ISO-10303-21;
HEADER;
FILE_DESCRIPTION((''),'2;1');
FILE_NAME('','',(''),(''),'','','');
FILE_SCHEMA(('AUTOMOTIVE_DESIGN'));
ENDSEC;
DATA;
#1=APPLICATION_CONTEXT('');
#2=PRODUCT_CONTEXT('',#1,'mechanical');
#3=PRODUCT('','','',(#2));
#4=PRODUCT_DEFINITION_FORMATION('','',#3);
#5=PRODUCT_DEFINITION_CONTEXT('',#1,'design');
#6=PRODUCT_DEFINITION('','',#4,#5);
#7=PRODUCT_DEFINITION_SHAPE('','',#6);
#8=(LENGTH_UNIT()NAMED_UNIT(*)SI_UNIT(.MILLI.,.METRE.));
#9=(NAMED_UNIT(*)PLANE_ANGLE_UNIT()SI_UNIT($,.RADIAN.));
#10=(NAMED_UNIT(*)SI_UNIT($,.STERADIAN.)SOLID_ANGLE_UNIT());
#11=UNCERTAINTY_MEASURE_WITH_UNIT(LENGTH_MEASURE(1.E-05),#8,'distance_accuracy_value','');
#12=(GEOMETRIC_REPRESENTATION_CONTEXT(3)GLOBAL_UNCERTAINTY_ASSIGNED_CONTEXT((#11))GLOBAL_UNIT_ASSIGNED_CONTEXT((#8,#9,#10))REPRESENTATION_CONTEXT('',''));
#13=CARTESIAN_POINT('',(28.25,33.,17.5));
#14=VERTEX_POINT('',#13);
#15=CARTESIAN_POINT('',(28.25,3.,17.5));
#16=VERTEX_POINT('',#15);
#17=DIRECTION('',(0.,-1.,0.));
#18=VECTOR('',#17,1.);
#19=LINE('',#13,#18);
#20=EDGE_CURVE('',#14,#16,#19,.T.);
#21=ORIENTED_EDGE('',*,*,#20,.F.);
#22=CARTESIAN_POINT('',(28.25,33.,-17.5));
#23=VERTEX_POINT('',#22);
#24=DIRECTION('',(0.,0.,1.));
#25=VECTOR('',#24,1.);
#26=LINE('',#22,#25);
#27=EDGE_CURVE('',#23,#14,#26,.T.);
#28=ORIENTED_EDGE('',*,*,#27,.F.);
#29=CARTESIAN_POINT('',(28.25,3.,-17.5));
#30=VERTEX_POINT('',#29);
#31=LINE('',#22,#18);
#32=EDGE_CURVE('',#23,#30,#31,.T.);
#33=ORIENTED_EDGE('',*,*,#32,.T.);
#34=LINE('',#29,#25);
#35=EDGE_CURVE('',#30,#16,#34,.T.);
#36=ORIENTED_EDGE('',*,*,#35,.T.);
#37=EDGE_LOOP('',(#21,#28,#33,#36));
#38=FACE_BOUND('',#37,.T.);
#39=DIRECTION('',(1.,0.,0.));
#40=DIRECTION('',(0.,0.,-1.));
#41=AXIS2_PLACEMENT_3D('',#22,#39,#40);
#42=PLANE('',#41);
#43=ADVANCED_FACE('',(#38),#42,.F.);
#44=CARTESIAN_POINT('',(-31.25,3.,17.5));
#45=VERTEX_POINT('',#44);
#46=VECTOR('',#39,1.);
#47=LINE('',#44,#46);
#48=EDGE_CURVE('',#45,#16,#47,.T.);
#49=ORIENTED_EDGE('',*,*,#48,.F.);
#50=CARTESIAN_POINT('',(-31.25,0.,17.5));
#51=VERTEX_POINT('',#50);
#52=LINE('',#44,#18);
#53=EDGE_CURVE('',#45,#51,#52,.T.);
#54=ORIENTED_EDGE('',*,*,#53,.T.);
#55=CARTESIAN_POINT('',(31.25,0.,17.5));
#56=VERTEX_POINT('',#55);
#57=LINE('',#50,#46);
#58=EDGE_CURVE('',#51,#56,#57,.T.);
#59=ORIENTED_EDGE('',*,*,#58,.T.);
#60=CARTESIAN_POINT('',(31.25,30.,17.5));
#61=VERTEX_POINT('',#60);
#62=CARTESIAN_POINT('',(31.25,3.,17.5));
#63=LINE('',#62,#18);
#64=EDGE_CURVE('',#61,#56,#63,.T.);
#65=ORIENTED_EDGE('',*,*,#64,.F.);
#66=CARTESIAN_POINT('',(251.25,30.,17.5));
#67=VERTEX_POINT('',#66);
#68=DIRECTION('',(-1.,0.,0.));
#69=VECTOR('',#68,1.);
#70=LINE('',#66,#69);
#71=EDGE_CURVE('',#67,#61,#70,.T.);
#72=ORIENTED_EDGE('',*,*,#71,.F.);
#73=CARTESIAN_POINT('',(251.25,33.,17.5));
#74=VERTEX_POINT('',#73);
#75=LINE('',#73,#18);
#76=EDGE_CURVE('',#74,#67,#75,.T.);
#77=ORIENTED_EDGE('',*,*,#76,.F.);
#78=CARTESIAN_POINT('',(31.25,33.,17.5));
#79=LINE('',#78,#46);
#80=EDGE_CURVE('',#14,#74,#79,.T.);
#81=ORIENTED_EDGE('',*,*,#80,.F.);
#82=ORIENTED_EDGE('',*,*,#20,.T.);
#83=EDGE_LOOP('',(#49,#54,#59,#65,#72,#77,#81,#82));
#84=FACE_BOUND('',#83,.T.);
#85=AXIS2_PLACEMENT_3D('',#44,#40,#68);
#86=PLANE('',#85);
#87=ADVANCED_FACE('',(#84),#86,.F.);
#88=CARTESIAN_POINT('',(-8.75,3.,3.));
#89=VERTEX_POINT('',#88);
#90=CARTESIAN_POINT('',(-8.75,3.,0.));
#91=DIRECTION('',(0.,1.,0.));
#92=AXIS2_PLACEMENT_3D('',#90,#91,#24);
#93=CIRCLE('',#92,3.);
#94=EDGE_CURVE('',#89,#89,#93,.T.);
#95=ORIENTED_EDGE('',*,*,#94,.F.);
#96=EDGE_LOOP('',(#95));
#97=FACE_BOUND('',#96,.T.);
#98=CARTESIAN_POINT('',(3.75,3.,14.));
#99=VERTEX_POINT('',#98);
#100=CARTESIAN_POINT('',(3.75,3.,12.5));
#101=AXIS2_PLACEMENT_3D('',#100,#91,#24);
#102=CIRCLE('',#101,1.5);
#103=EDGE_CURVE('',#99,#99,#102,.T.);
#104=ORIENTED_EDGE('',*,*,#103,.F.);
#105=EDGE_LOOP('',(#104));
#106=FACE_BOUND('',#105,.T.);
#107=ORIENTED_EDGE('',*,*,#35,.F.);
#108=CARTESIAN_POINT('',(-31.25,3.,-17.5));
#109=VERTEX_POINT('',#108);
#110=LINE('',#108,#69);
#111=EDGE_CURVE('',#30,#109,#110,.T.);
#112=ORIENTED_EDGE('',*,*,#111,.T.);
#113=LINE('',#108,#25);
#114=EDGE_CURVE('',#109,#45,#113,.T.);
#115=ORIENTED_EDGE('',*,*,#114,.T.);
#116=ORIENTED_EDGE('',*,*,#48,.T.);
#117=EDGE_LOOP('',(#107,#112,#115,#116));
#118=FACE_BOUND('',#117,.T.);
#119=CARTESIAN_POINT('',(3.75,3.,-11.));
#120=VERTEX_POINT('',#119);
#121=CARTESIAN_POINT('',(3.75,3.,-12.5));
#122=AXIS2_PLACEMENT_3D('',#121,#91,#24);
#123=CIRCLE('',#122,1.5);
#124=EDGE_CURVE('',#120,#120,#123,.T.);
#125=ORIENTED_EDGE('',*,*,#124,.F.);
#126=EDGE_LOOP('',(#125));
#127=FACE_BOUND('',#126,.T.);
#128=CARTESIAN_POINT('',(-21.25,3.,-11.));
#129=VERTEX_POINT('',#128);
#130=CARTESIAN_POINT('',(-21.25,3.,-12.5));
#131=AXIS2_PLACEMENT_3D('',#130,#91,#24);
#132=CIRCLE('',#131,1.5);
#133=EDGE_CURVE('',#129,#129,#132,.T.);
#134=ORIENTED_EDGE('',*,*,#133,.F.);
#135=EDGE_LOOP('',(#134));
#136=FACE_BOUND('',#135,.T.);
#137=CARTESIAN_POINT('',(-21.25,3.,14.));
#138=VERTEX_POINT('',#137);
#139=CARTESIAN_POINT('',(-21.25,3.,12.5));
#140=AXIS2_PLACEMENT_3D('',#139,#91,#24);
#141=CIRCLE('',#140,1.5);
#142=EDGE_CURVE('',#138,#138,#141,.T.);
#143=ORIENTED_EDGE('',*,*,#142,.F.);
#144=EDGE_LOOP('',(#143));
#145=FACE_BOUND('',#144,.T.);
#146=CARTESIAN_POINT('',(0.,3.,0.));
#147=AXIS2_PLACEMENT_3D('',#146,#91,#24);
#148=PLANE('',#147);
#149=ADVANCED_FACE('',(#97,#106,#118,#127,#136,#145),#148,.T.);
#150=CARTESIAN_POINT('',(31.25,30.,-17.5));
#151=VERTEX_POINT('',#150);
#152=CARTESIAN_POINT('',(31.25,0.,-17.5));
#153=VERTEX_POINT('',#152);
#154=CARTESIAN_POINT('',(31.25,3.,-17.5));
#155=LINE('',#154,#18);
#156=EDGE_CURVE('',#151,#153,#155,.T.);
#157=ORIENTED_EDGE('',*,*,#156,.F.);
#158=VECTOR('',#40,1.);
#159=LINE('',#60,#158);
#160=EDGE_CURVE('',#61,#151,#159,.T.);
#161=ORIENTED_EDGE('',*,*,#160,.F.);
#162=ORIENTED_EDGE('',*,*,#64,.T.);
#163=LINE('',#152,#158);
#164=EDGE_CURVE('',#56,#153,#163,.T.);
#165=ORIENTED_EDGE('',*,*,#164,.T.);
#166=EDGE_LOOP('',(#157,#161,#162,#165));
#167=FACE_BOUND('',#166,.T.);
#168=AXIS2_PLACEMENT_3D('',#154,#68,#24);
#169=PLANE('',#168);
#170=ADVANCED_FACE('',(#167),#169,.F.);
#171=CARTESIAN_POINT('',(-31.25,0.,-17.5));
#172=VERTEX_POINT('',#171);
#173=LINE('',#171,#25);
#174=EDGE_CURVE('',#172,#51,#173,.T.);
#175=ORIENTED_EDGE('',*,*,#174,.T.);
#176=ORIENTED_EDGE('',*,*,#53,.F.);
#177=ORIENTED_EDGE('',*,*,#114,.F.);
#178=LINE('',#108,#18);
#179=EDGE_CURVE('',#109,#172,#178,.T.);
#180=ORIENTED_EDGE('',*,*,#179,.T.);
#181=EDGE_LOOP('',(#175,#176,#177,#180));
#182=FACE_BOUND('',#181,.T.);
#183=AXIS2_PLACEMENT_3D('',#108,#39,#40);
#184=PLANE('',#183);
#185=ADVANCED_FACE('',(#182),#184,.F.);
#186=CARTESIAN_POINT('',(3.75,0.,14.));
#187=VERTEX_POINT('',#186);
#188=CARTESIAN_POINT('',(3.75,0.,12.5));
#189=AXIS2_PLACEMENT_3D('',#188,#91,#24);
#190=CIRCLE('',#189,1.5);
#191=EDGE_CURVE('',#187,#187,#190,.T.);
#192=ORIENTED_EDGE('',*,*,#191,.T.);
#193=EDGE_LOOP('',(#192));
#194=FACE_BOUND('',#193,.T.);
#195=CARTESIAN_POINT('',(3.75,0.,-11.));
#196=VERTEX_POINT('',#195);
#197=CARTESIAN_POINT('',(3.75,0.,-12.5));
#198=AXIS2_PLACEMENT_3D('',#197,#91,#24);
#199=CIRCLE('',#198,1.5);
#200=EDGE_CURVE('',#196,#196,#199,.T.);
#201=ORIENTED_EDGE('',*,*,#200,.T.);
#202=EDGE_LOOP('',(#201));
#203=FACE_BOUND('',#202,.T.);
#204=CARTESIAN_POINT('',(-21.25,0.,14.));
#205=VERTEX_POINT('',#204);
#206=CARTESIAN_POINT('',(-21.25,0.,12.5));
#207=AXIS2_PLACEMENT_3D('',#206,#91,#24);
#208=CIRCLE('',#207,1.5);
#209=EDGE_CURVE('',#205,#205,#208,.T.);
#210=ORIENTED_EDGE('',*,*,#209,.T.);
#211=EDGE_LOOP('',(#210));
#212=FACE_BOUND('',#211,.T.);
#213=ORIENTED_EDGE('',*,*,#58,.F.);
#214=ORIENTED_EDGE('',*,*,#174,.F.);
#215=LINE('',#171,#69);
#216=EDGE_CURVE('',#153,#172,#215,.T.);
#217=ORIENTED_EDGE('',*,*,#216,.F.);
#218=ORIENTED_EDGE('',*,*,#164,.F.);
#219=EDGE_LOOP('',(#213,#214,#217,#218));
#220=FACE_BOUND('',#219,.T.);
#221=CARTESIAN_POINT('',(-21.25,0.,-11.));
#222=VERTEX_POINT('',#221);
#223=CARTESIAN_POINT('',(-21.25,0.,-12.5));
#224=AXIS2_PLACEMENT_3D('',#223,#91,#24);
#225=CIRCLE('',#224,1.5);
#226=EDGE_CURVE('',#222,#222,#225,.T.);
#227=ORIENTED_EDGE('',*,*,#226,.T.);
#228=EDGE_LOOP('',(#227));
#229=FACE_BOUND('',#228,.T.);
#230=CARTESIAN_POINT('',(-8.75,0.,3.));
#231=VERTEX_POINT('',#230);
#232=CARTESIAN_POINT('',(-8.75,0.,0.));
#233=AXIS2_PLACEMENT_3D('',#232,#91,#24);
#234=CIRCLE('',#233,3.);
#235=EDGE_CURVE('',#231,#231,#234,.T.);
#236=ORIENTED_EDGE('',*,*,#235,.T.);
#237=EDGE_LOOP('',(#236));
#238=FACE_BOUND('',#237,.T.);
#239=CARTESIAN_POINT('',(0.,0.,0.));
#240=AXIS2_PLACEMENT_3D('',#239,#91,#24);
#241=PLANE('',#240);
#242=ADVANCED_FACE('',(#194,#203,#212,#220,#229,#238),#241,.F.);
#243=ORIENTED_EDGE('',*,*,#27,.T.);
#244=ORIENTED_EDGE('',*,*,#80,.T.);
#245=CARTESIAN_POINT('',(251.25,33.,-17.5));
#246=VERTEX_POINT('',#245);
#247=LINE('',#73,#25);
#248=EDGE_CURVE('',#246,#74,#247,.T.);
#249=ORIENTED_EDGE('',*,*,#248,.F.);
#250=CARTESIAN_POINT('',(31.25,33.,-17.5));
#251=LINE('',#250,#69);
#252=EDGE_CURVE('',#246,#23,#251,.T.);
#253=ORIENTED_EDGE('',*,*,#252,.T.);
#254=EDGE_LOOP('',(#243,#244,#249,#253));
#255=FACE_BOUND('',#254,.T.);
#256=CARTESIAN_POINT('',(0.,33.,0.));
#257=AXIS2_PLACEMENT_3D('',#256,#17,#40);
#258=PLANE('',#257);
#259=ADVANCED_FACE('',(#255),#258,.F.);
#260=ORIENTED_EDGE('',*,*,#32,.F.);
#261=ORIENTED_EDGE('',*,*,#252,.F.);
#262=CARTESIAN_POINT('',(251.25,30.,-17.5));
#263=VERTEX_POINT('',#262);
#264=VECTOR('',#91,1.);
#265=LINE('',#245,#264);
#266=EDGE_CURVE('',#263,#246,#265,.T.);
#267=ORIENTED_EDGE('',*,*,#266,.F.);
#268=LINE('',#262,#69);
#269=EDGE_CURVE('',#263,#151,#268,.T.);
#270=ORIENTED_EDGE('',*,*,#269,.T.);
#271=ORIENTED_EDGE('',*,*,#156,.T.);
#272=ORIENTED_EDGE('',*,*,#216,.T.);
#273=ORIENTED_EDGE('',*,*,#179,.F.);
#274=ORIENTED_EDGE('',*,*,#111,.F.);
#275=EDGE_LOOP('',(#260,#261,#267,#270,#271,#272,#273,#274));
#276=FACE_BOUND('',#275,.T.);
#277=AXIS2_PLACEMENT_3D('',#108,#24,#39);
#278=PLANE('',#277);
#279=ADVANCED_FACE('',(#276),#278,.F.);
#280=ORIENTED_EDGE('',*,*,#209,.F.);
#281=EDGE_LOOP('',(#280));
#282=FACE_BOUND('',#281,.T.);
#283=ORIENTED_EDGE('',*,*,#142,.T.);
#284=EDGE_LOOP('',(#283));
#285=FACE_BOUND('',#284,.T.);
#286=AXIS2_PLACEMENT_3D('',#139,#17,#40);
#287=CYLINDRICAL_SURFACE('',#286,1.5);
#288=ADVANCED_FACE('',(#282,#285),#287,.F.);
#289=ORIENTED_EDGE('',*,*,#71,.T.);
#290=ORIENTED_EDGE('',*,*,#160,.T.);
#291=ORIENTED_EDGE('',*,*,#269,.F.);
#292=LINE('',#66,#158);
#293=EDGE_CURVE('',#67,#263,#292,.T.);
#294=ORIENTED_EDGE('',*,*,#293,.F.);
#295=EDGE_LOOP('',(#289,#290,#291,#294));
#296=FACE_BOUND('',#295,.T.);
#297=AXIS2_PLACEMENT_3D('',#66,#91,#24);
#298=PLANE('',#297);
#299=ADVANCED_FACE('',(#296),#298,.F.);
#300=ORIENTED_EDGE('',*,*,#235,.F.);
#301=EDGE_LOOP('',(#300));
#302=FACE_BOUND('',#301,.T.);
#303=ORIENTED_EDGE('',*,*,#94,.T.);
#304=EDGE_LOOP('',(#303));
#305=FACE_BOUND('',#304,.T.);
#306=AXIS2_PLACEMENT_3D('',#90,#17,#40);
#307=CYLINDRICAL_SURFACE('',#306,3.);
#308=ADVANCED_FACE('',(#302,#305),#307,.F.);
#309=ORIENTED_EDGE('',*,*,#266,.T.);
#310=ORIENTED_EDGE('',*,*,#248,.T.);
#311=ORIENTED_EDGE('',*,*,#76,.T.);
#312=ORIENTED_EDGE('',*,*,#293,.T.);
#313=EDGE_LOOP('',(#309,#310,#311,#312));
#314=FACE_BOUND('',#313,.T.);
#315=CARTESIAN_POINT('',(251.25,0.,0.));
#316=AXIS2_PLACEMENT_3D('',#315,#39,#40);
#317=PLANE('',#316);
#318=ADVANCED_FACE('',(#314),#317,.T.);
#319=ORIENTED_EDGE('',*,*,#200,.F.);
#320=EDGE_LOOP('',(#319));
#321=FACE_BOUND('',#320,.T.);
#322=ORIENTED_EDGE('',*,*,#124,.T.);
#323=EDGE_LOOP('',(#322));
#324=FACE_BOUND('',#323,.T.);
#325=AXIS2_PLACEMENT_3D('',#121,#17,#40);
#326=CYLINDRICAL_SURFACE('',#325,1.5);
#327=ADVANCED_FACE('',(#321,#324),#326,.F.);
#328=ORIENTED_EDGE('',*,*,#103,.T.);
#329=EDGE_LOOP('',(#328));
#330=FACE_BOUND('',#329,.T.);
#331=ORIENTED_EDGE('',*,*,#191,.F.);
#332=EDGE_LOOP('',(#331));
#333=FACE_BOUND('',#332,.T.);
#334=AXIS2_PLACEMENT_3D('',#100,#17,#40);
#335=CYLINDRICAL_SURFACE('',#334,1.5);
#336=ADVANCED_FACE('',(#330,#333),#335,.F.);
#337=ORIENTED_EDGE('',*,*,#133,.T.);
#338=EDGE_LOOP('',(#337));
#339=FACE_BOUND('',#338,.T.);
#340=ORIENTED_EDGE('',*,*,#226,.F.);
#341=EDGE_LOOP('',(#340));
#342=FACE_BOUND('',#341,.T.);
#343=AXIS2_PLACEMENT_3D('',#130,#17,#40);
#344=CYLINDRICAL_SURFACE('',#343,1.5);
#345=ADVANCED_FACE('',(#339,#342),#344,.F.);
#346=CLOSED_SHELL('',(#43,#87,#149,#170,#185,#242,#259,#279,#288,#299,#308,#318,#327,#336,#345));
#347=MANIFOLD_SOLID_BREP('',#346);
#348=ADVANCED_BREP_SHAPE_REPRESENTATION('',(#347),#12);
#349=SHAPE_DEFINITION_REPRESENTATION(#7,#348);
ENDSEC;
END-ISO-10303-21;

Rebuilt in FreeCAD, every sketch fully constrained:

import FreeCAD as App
import Part
import Sketcher
from FreeCAD import Vector


def add_polygon(sketch, points):
    """Adds a closed chain of lines whose ends are joined by coincident constraints."""
    first, n = sketch.GeometryCount, len(points)
    for a, b in zip(points, points[1:] + points[:1]):
        sketch.addGeometry(Part.LineSegment(App.Vector(*a, 0), App.Vector(*b, 0)), False)
    for i in range(n):
        sketch.addConstraint(Sketcher.Constraint("Coincident", first + i, 2, first + (i + 1) % n, 1))

doc = App.newDocument("Part")
body = doc.addObject("PartDesign::Body", "Body")

sketch1 = doc.addObject("Sketcher::SketchObject", "Sketch")
body.addObject(sketch1)
sketch1.AttachmentSupport = (doc.XZ_Plane, [""])
sketch1.MapMode = "FlatFace"
add_polygon(sketch1, [(-31.2, -17.5), (-31.2, 17.5), (31.2, 17.5), (31.2, -17.5)])
sketch1.addGeometry(Part.Circle(Vector(-21.2, 12.5, 0), Vector(0, 0, 1), 1.5), False)
sketch1.addGeometry(Part.Circle(Vector(3.8, 12.5, 0), Vector(0, 0, 1), 1.5), False)
sketch1.addGeometry(Part.Circle(Vector(-21.2, -12.5, 0), Vector(0, 0, 1), 1.5), False)
sketch1.addGeometry(Part.Circle(Vector(-8.8, 0, 0), Vector(0, 0, 1), 3), False)
sketch1.addGeometry(Part.Circle(Vector(3.8, -12.5, 0), Vector(0, 0, 1), 1.5), False)
sketch1.addConstraint([
    Sketcher.Constraint("Vertical", 0),
    Sketcher.Constraint("Horizontal", 1),
    Sketcher.Constraint("Vertical", 2),
    Sketcher.Constraint("Horizontal", 3),
    Sketcher.Constraint("Equal", 4, 5),
    Sketcher.Constraint("Equal", 5, 6),
    Sketcher.Constraint("Equal", 6, 8),
    Sketcher.Constraint("Symmetric", 0, 2, 2, 2, -1, 1),
    Sketcher.Constraint("Symmetric", 4, 3, 6, 3, -1),
    Sketcher.Constraint("Symmetric", 5, 3, 8, 3, -1),
    Sketcher.Constraint("PointOnObject", 7, 3, -1),
    Sketcher.Constraint("Horizontal", 4, 3, 5, 3),
    Sketcher.Constraint("Diameter", 4, 3.0),
    Sketcher.Constraint("Diameter", 7, 6.0),
    Sketcher.Constraint("DistanceY", 0, 1, 0, 2, 35.0),
    Sketcher.Constraint("DistanceX", 1, 1, 1, 2, 62.5),
    Sketcher.Constraint("DistanceX", 4, 3, 5, 3, 25.0),
    Sketcher.Constraint("DistanceY", 6, 3, 4, 3, 25.0),
    Sketcher.Constraint("DistanceX", 0, 2, 4, 3, 10.0),
    Sketcher.Constraint("DistanceX", 7, 3, 1, 2, 40.0),
])
pad1 = doc.addObject("PartDesign::Pad", "Pad")
body.addObject(pad1)
pad1.Profile = sketch1
pad1.Length = 3
pad1.Reversed = True

sketch2 = doc.addObject("Sketcher::SketchObject", "Sketch001")
body.addObject(sketch2)
sketch2.AttachmentSupport = (doc.XZ_Plane, [""])
sketch2.MapMode = "FlatFace"
sketch2.AttachmentOffset = App.Placement(Vector(0, 0, -3), App.Rotation())
add_polygon(sketch2, [(28.2, -17.5), (28.2, 17.5), (31.2, 17.5), (31.2, -17.5)])
sketch2.addConstraint([
    Sketcher.Constraint("Vertical", 0),
    Sketcher.Constraint("Horizontal", 1),
    Sketcher.Constraint("Vertical", 2),
    Sketcher.Constraint("Horizontal", 3),
    Sketcher.Constraint("DistanceX", 1, 1, 1, 2, 3.0),
    Sketcher.Constraint("DistanceY", 0, 1, 0, 2, 35.0),
    Sketcher.Constraint("DistanceY", -1, 1, 0, 2, 17.5),
    Sketcher.Constraint("DistanceX", -1, 1, 0, 2, 28.25),
])
pad2 = doc.addObject("PartDesign::Pad", "Pad001")
body.addObject(pad2)
pad2.Profile = sketch2
pad2.Length = 30
pad2.Reversed = True

sketch3 = doc.addObject("Sketcher::SketchObject", "Sketch002")
body.addObject(sketch3)
sketch3.AttachmentSupport = (doc.YZ_Plane, [""])
sketch3.MapMode = "FlatFace"
sketch3.AttachmentOffset = App.Placement(Vector(0, 0, 31.25), App.Rotation())
add_polygon(sketch3, [(33, 17.5), (30, 17.5), (30, -17.5), (33, -17.5)])
sketch3.addConstraint([
    Sketcher.Constraint("Horizontal", 0),
    Sketcher.Constraint("Vertical", 1),
    Sketcher.Constraint("Horizontal", 2),
    Sketcher.Constraint("Vertical", 3),
    Sketcher.Constraint("DistanceX", 0, 2, 0, 1, 3.0),
    Sketcher.Constraint("DistanceY", 1, 2, 1, 1, 35.0),
    Sketcher.Constraint("DistanceX", -1, 1, 0, 2, 30.0),
    Sketcher.Constraint("DistanceY", -1, 1, 0, 2, 17.5),
])
pad3 = doc.addObject("PartDesign::Pad", "Pad002")
body.addObject(pad3)
pad3.Profile = sketch3
pad3.Length = 220

doc.recompute()
